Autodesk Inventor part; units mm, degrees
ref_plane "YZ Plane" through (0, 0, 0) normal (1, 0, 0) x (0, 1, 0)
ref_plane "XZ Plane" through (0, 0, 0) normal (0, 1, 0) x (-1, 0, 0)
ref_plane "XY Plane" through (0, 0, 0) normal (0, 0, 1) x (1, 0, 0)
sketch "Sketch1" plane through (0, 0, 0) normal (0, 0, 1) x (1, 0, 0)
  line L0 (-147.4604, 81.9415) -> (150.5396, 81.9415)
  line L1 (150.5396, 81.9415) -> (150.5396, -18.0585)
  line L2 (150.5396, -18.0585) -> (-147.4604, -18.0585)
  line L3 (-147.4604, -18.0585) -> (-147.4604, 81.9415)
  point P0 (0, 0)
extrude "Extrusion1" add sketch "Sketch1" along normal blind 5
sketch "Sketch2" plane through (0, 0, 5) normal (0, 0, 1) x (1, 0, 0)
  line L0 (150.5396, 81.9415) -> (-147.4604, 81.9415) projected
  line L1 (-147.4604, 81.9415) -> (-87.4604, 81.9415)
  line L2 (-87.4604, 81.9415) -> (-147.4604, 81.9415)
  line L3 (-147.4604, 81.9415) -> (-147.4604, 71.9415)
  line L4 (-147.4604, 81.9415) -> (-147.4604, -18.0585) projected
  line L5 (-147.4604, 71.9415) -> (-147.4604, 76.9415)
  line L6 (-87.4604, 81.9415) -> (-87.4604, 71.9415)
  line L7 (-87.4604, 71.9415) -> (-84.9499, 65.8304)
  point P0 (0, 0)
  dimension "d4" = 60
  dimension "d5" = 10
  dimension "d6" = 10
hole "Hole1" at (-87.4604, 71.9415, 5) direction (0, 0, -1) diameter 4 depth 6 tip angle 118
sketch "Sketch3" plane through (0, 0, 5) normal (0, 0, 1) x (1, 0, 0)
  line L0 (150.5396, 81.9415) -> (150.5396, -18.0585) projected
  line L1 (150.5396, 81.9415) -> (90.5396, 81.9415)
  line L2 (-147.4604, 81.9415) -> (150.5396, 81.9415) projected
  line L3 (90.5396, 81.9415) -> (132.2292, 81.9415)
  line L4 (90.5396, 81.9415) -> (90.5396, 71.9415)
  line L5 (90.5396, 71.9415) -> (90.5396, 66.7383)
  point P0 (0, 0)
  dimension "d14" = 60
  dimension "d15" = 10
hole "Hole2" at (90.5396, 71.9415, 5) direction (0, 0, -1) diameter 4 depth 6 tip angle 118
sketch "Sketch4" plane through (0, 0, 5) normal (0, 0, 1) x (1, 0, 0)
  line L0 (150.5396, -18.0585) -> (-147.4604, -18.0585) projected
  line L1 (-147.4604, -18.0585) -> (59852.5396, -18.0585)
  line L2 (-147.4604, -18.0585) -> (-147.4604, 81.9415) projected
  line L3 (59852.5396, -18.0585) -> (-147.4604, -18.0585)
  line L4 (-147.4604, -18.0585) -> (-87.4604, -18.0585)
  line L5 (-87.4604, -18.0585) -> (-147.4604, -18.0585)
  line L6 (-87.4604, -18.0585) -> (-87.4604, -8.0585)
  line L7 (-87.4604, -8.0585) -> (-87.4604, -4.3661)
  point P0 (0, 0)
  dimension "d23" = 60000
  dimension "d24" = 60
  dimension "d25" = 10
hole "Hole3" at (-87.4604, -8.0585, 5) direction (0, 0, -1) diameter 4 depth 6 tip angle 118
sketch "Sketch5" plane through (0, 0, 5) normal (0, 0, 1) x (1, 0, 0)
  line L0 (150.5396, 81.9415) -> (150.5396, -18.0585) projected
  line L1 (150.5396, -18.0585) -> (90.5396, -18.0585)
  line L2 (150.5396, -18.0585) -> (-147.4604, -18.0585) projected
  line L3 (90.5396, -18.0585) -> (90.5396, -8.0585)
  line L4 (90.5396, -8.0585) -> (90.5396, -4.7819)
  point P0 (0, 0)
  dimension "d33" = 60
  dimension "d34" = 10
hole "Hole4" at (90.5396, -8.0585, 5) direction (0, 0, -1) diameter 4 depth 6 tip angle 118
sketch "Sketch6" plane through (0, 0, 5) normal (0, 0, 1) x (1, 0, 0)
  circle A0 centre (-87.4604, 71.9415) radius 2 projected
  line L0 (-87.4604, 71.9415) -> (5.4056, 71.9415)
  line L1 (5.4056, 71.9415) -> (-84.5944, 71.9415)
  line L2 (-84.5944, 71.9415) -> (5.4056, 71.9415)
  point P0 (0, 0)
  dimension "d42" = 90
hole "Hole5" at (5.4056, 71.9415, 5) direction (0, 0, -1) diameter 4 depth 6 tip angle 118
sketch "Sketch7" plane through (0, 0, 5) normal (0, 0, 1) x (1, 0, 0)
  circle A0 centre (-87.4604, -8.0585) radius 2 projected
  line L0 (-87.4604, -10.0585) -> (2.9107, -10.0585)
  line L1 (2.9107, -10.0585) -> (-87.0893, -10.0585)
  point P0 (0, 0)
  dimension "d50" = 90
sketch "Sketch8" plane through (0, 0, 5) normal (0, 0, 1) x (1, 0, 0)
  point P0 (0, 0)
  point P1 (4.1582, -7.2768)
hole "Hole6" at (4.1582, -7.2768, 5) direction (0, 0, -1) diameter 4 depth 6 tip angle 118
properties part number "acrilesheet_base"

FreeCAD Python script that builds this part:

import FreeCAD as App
import Part
import Sketcher
from FreeCAD import Vector
Q = App.Units.Quantity


def add_polygon(sketch, points):
    """Adds a closed chain of lines whose ends are joined by coincident constraints."""
    first, n = sketch.GeometryCount, len(points)
    for a, b in zip(points, points[1:] + points[:1]):
        sketch.addGeometry(Part.LineSegment(App.Vector(*a, 0), App.Vector(*b, 0)), False)
    for i in range(n):
        sketch.addConstraint(Sketcher.Constraint("Coincident", first + i, 2, first + (i + 1) % n, 1))

doc = App.newDocument("Part")
body = doc.addObject("PartDesign::Body", "Body")

sketch1 = body.newObject("Sketcher::SketchObject", "Sketch")
sketch1.AttachmentSupport = (doc.getObject("XY_Plane"), [""])
sketch1.MapMode = "FlatFace"
add_polygon(sketch1, [(151, 82), (-147, 82), (-147, -18), (151, -18)])
sketch1.addConstraint(Sketcher.Constraint("Horizontal", 0))
sketch1.addConstraint(Sketcher.Constraint("Vertical", 1))
sketch1.addConstraint(Sketcher.Constraint("Horizontal", 2))
sketch1.addConstraint(Sketcher.Constraint("Vertical", 3))
sketch1.addConstraint(Sketcher.Constraint("DistanceX", 0, 2, 0, 1, Q("298 mm")))
sketch1.addConstraint(Sketcher.Constraint("DistanceY", 1, 2, 1, 1, Q("100 mm")))
sketch1.addConstraint(Sketcher.Constraint("DistanceX", 0, 2, -1, 1, Q("147.4604 mm")))
sketch1.addConstraint(Sketcher.Constraint("DistanceY", -1, 1, 0, 2, Q("81.9415 mm")))
pad1 = body.newObject("PartDesign::Pad", "Pad")
pad1.Profile = sketch1
pad1.Length = 5

sketch2 = body.newObject("Sketcher::SketchObject", "Sketch001")
sketch2.AttachmentSupport = (doc.getObject("XY_Plane"), [""])
sketch2.MapMode = "FlatFace"
sketch2.AttachmentOffset = App.Placement(Vector(0, 0, 5), App.Rotation())
sketch2.addGeometry(Part.Circle(Vector(-87.5, 71.9, 0), Vector(0, 0, 1), 2), False)
sketch2.addConstraint(Sketcher.Constraint("Diameter", 0, Q("4 mm")))
sketch2.addConstraint(Sketcher.Constraint("DistanceX", 0, 3, -1, 1, Q("87.4604 mm")))
sketch2.addConstraint(Sketcher.Constraint("DistanceY", -1, 1, 0, 3, Q("71.9415 mm")))
doc.recompute()
hole = body.newObject("PartDesign::Hole", "Hole")
hole.Profile = sketch2
hole.ThreadType = "None"
hole.Diameter = 4
hole.DepthType = "Dimension"
hole.Depth = 6
hole.DrillPoint = "Angled"
hole.DrillPointAngle = 118

sketch3 = body.newObject("Sketcher::SketchObject", "Sketch002")
sketch3.AttachmentSupport = (doc.getObject("XY_Plane"), [""])
sketch3.MapMode = "FlatFace"
sketch3.AttachmentOffset = App.Placement(Vector(0, 0, 5), App.Rotation())
sketch3.addGeometry(Part.Circle(Vector(90.5, 71.9, 0), Vector(0, 0, 1), 2), False)
sketch3.addConstraint(Sketcher.Constraint("Diameter", 0, Q("4 mm")))
sketch3.addConstraint(Sketcher.Constraint("DistanceX", -1, 1, 0, 3, Q("90.5396 mm")))
sketch3.addConstraint(Sketcher.Constraint("DistanceY", -1, 1, 0, 3, Q("71.9415 mm")))
doc.recompute()
hole2 = body.newObject("PartDesign::Hole", "Hole001")
hole2.Profile = sketch3
hole2.ThreadType = "None"
hole2.Diameter = 4
hole2.DepthType = "Dimension"
hole2.Depth = 6
hole2.DrillPoint = "Angled"
hole2.DrillPointAngle = 118

sketch4 = body.newObject("Sketcher::SketchObject", "Sketch003")
sketch4.AttachmentSupport = (doc.getObject("XY_Plane"), [""])
sketch4.MapMode = "FlatFace"
sketch4.AttachmentOffset = App.Placement(Vector(0, 0, 5), App.Rotation())
sketch4.addGeometry(Part.Circle(Vector(-87.5, -8.1, 0), Vector(0, 0, 1), 2), False)
sketch4.addConstraint(Sketcher.Constraint("Diameter", 0, Q("4 mm")))
sketch4.addConstraint(Sketcher.Constraint("DistanceX", 0, 3, -1, 1, Q("87.4604 mm")))
sketch4.addConstraint(Sketcher.Constraint("DistanceY", 0, 3, -1, 1, Q("8.0585 mm")))
doc.recompute()
hole3 = body.newObject("PartDesign::Hole", "Hole002")
hole3.Profile = sketch4
hole3.ThreadType = "None"
hole3.Diameter = 4
hole3.DepthType = "Dimension"
hole3.Depth = 6
hole3.DrillPoint = "Angled"
hole3.DrillPointAngle = 118

sketch5 = body.newObject("Sketcher::SketchObject", "Sketch004")
sketch5.AttachmentSupport = (doc.getObject("XY_Plane"), [""])
sketch5.MapMode = "FlatFace"
sketch5.AttachmentOffset = App.Placement(Vector(0, 0, 5), App.Rotation())
sketch5.addGeometry(Part.Circle(Vector(90.5, -8.1, 0), Vector(0, 0, 1), 2), False)
sketch5.addConstraint(Sketcher.Constraint("Diameter", 0, Q("4 mm")))
sketch5.addConstraint(Sketcher.Constraint("DistanceX", -1, 1, 0, 3, Q("90.5396 mm")))
sketch5.addConstraint(Sketcher.Constraint("DistanceY", 0, 3, -1, 1, Q("8.0585 mm")))
doc.recompute()
hole4 = body.newObject("PartDesign::Hole", "Hole003")
hole4.Profile = sketch5
hole4.ThreadType = "None"
hole4.Diameter = 4
hole4.DepthType = "Dimension"
hole4.Depth = 6
hole4.DrillPoint = "Angled"
hole4.DrillPointAngle = 118

sketch6 = body.newObject("Sketcher::SketchObject", "Sketch005")
sketch6.AttachmentSupport = (doc.getObject("XY_Plane"), [""])
sketch6.MapMode = "FlatFace"
sketch6.AttachmentOffset = App.Placement(Vector(0, 0, 5), App.Rotation())
sketch6.addGeometry(Part.Circle(Vector(5.4, 71.9, 0), Vector(0, 0, 1), 2), False)
sketch6.addConstraint(Sketcher.Constraint("Diameter", 0, Q("4 mm")))
sketch6.addConstraint(Sketcher.Constraint("DistanceX", -1, 1, 0, 3, Q("5.4056 mm")))
sketch6.addConstraint(Sketcher.Constraint("DistanceY", -1, 1, 0, 3, Q("71.9415 mm")))
doc.recompute()
hole5 = body.newObject("PartDesign::Hole", "Hole004")
hole5.Profile = sketch6
hole5.ThreadType = "None"
hole5.Diameter = 4
hole5.DepthType = "Dimension"
hole5.Depth = 6
hole5.DrillPoint = "Angled"
hole5.DrillPointAngle = 118

sketch7 = body.newObject("Sketcher::SketchObject", "Sketch006")
sketch7.AttachmentSupport = (doc.getObject("XY_Plane"), [""])
sketch7.MapMode = "FlatFace"
sketch7.AttachmentOffset = App.Placement(Vector(0, 0, 5), App.Rotation())
sketch7.addGeometry(Part.Circle(Vector(4.2, -7.3, 0), Vector(0, 0, 1), 2), False)
sketch7.addConstraint(Sketcher.Constraint("Diameter", 0, Q("4 mm")))
sketch7.addConstraint(Sketcher.Constraint("DistanceX", -1, 1, 0, 3, Q("4.1582 mm")))
sketch7.addConstraint(Sketcher.Constraint("DistanceY", 0, 3, -1, 1, Q("7.2768 mm")))
doc.recompute()
hole6 = body.newObject("PartDesign::Hole", "Hole005")
hole6.Profile = sketch7
hole6.ThreadType = "None"
hole6.Diameter = 4
hole6.DepthType = "Dimension"
hole6.Depth = 6
hole6.DrillPoint = "Angled"
hole6.DrillPointAngle = 118

doc.recompute()
